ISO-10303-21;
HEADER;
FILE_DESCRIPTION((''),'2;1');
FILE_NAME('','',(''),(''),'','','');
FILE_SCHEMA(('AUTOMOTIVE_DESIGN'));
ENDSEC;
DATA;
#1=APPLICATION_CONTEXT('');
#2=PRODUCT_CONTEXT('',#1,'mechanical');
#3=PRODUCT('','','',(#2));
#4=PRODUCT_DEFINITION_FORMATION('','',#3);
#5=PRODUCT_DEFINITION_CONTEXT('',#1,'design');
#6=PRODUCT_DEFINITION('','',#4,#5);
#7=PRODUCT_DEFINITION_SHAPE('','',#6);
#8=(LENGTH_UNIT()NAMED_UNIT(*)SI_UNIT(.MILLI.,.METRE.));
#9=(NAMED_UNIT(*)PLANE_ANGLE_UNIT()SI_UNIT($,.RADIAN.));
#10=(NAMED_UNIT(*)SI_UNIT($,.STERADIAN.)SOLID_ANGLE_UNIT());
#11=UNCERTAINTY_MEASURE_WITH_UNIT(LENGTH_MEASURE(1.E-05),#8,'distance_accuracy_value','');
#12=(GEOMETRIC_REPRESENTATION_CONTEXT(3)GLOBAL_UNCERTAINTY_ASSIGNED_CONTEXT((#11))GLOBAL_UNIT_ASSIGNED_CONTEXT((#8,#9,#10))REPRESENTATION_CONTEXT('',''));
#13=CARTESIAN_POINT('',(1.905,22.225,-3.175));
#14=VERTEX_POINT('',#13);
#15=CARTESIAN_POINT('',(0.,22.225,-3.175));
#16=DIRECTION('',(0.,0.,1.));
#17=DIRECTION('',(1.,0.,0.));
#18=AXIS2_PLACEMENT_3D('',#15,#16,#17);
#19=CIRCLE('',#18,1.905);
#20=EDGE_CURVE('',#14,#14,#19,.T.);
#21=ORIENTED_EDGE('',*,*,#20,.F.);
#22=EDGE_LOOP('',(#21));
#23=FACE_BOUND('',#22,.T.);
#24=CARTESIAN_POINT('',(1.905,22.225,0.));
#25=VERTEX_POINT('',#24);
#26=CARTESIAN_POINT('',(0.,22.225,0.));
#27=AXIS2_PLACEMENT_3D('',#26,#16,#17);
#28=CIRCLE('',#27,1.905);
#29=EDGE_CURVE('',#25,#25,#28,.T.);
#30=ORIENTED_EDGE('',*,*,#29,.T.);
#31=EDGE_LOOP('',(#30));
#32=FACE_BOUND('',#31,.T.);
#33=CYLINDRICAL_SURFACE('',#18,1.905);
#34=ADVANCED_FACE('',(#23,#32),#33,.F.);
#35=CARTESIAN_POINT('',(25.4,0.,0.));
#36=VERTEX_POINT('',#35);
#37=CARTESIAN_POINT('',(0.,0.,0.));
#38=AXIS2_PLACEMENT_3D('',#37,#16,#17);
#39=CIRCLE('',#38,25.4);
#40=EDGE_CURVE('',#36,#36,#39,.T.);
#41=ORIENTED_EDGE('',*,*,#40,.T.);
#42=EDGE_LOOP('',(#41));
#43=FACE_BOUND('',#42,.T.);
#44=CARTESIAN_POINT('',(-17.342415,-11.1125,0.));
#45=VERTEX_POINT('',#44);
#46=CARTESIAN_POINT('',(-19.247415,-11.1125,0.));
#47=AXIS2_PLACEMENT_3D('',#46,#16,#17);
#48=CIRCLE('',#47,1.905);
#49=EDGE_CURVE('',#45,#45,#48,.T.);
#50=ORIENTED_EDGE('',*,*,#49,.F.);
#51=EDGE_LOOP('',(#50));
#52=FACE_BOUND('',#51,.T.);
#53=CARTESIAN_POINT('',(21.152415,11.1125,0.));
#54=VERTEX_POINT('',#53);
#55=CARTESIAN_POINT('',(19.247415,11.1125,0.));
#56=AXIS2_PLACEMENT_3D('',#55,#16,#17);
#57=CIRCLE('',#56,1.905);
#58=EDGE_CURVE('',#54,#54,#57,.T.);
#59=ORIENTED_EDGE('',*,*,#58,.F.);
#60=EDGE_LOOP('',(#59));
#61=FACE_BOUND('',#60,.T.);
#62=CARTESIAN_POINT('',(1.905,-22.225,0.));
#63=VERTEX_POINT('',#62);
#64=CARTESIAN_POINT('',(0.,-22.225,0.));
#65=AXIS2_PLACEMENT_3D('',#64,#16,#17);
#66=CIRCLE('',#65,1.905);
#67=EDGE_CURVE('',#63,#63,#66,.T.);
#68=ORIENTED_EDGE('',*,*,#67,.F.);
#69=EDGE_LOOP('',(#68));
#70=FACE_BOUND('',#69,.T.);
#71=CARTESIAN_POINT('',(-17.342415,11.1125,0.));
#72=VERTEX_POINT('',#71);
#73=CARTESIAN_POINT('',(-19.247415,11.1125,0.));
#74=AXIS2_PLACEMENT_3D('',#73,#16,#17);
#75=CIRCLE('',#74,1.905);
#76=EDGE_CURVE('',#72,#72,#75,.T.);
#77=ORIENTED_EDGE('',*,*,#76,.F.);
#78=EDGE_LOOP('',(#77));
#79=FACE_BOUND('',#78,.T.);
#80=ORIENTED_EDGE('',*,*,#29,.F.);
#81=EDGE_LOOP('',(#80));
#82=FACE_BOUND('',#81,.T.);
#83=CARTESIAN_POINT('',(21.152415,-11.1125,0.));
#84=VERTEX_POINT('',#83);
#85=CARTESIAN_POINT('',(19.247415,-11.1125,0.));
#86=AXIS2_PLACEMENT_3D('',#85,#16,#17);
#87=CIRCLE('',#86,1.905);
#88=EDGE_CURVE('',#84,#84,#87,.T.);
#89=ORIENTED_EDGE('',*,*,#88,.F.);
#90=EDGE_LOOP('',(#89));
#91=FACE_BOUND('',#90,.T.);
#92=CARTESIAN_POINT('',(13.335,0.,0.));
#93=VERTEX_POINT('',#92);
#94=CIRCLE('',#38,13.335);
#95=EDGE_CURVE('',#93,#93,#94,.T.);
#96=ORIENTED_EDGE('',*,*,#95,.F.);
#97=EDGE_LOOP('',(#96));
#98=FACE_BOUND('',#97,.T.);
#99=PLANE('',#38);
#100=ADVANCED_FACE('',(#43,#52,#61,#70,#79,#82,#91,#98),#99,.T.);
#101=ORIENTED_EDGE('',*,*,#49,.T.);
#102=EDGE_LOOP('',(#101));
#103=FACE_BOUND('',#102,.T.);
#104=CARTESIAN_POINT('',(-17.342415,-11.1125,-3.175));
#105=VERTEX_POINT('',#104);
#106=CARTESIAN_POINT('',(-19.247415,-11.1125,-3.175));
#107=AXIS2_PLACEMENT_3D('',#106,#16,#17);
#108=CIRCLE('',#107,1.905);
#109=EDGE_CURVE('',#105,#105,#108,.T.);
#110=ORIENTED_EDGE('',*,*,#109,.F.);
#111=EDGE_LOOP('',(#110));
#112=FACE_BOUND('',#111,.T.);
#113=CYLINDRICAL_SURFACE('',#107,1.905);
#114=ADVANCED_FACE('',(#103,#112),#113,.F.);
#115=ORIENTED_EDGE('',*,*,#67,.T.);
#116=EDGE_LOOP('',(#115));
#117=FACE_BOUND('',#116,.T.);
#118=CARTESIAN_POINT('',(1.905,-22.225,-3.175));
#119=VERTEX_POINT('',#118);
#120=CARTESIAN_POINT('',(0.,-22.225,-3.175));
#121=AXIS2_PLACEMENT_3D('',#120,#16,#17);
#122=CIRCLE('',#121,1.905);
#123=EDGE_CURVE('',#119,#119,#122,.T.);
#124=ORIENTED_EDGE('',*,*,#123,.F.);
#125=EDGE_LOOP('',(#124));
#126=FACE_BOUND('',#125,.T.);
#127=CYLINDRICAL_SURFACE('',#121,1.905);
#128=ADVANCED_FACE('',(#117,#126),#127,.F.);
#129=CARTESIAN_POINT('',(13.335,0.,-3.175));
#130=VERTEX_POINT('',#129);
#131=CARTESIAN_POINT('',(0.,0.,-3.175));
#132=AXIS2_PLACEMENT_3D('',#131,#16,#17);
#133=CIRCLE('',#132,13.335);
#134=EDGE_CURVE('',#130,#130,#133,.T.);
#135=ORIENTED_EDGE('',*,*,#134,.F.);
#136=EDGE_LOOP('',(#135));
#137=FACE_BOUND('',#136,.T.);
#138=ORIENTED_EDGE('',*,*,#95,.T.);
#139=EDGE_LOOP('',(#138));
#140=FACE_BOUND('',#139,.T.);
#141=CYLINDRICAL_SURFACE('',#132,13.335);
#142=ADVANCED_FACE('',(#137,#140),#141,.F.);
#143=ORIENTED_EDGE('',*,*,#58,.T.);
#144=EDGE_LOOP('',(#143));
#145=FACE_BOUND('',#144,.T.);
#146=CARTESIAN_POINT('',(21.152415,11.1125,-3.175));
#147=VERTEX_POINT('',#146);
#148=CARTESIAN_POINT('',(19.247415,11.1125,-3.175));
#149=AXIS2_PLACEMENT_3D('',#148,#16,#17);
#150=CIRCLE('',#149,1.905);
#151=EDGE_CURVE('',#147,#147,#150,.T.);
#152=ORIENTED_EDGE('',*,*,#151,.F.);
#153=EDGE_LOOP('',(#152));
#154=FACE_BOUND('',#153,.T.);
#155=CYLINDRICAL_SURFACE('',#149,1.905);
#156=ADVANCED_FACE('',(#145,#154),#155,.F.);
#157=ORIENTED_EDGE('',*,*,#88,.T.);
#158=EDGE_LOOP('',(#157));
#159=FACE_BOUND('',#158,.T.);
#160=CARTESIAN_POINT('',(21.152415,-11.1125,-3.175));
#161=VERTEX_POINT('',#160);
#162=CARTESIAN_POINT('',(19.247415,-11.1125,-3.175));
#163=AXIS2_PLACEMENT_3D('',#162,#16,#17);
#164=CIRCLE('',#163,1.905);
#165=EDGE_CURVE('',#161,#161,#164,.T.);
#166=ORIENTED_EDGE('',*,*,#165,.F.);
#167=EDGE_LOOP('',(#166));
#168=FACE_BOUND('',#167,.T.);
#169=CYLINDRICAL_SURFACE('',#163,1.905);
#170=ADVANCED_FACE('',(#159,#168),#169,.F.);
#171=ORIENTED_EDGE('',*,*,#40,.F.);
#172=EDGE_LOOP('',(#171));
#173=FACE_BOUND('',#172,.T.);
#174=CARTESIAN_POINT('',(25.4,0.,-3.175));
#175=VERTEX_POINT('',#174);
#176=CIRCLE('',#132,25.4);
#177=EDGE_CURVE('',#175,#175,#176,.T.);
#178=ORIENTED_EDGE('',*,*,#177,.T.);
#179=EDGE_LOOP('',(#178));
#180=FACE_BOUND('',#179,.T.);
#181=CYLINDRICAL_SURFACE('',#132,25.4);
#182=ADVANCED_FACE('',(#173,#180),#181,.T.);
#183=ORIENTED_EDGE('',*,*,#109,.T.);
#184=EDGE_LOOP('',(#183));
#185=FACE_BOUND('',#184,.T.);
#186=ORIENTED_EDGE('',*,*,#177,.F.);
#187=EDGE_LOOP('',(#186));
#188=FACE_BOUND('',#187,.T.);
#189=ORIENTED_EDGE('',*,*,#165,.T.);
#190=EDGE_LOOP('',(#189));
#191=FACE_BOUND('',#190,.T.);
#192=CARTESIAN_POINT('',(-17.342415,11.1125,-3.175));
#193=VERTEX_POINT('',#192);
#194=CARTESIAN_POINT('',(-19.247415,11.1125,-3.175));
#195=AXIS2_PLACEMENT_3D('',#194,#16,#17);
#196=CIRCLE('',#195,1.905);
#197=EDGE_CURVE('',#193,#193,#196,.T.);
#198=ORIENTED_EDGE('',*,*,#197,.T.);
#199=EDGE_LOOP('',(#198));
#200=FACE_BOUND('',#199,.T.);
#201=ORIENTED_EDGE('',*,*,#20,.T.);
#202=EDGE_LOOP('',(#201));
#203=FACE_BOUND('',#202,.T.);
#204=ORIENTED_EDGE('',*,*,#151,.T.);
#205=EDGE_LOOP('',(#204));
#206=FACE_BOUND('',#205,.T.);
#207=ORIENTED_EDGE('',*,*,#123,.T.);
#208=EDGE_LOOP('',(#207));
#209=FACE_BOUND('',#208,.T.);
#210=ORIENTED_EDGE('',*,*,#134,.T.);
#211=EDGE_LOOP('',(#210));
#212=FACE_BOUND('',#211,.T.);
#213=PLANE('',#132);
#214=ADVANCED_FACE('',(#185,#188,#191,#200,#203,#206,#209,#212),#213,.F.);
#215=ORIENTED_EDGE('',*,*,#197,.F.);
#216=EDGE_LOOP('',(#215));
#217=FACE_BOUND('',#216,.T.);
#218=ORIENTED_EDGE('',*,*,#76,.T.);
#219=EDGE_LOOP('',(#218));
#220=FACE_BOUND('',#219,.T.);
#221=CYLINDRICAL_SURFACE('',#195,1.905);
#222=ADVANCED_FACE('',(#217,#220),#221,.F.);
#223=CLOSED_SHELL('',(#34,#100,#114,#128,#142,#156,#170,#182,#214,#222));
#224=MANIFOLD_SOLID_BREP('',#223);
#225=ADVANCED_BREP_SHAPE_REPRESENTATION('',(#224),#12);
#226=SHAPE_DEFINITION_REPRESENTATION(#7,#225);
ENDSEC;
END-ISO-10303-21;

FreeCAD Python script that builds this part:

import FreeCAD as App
import Part
import Sketcher
Q = App.Units.Quantity

doc = App.newDocument("Part")
body = doc.addObject("PartDesign::Body", "Body")

sketch1 = body.newObject("Sketcher::SketchObject", "Sketch")
sketch1.AttachmentSupport = (doc.getObject("XY_Plane"), [""])
sketch1.MapMode = "FlatFace"
sketch1.addGeometry([
    Part.Circle(App.Vector(0, 0, 0), App.Vector(0, 0, 1), 25.4),
    Part.Circle(App.Vector(-19.247415, -11.1125, 0), App.Vector(0, 0, 1), 1.905),
    Part.Circle(App.Vector(0, -22.225, 0), App.Vector(0, 0, 1), 1.905),
    Part.Circle(App.Vector(19.247415, -11.1125, 0), App.Vector(0, 0, 1), 1.905),
    Part.Circle(App.Vector(-19.247415, 11.1125, 0), App.Vector(0, 0, 1), 1.905),
    Part.Circle(App.Vector(0, 0, 0), App.Vector(0, 0, 1), 13.335),
    Part.Circle(App.Vector(19.247415, 11.1125, 0), App.Vector(0, 0, 1), 1.905),
    Part.Circle(App.Vector(0, 22.225, 0), App.Vector(0, 0, 1), 1.905),
], False)
sketch1.addConstraint([
    Sketcher.Constraint("Coincident", 0, 3, -1, 1),
    Sketcher.Constraint("Coincident", 5, 3, -1, 1),
    Sketcher.Constraint("Equal", 1, 2),
    Sketcher.Constraint("Equal", 2, 3),
    Sketcher.Constraint("Equal", 3, 4),
    Sketcher.Constraint("Equal", 4, 6),
    Sketcher.Constraint("Equal", 6, 7),
    Sketcher.Constraint("Symmetric", 3, 3, 4, 3, -1, 1),
    Sketcher.Constraint("Symmetric", 1, 3, 6, 3, -1, 1),
    Sketcher.Constraint("Symmetric", 2, 3, 7, 3, -1, 1),
    Sketcher.Constraint("Symmetric", 1, 3, 3, 3, -2),
    Sketcher.Constraint("PointOnObject", 2, 3, -2),
    Sketcher.Constraint("Diameter", 0, Q("2 in")),
    Sketcher.Constraint("Diameter", 1, Q("0.15 in")),
    Sketcher.Constraint("Diameter", 5, Q("1.05 in")),
    Sketcher.Constraint("DistanceY", 1, 3, -1, 1, Q("0.4375 in")),
    Sketcher.Constraint("DistanceY", 2, 3, -1, 1, Q("0.875 in")),
    Sketcher.Constraint("DistanceX", 1, 3, 3, 3, Q("38.494829 mm")),
])
pad1 = body.newObject("PartDesign::Pad", "Pad")
pad1.Profile = sketch1
pad1.Length = Q("0.125 in")
pad1.Reversed = True

doc.recompute()
